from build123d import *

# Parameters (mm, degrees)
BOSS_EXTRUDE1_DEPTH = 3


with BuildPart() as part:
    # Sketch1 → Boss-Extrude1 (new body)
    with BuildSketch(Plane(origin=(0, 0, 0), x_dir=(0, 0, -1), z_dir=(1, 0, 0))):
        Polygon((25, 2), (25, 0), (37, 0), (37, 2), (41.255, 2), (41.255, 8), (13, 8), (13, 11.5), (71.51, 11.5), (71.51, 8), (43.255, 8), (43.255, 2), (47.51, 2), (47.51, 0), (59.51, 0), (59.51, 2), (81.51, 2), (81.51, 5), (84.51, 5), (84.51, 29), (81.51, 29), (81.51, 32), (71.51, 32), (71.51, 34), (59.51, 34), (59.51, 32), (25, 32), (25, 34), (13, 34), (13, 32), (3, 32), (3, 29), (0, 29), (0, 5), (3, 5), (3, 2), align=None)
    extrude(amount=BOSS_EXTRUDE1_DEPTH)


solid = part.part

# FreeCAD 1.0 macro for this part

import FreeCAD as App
import Part
import Sketcher
from FreeCAD import Vector


def add_polygon(sketch, points):
    """Adds a closed chain of lines whose ends are joined by coincident constraints."""
    first, n = sketch.GeometryCount, len(points)
    for a, b in zip(points, points[1:] + points[:1]):
        sketch.addGeometry(Part.LineSegment(App.Vector(*a, 0), App.Vector(*b, 0)), False)
    for i in range(n):
        sketch.addConstraint(Sketcher.Constraint("Coincident", first + i, 2, first + (i + 1) % n, 1))

doc = App.newDocument("Part")
params = doc.addObject("Spreadsheet::Sheet", "Params")
for row, (alias, value) in enumerate([
    ("sketch1_width", "2 mm"),
    ("sketch1_width2", "6 mm"),
    ("sketch1_width3", "3 mm"),
    ("sketch1_width4", "24 mm"),
    ("sketch1_height", "12 mm"),
    ("pad1_length", "3 mm"),
], start=1):
    params.set(f"A{row}", alias)
    params.set(f"B{row}", "=" + value)
    params.setAlias(f"B{row}", alias)

body = doc.addObject("PartDesign::Body", "Body")

# Sketch on YZ plane
sketch1 = doc.addObject("Sketcher::SketchObject", "Sketch")
body.addObject(sketch1)
sketch1.AttachmentSupport = (doc.YZ_Plane, [""])
sketch1.MapMode = "FlatFace"
add_polygon(sketch1, [(2, -25), (0, -25), (0, -37), (2, -37), (2, -41.3), (8, -41.3), (8, -13), (11.5, -13), (11.5, -71.5), (8, -71.5), (8, -43.3), (2, -43.3), (2, -47.5), (0, -47.5), (0, -59.5), (2, -59.5), (2, -81.5), (5, -81.5), (5, -84.5), (29, -84.5), (29, -81.5), (32, -81.5), (32, -71.5), (34, -71.5), (34, -59.5), (32, -59.5), (32, -25), (34, -25), (34, -13), (32, -13), (32, -3), (29, -3), (29, 0), (5, 0), (5, -3), (2, -3)])  # lines 0-35
sketch1.addConstraint([
    Sketcher.Constraint("Horizontal", 0),
    Sketcher.Constraint("Vertical", 1),
    Sketcher.Constraint("Horizontal", 2),
    Sketcher.Constraint("Vertical", 3),
    Sketcher.Constraint("Horizontal", 4),
    Sketcher.Constraint("Vertical", 5),
    Sketcher.Constraint("Horizontal", 6),
    Sketcher.Constraint("Vertical", 7),
    Sketcher.Constraint("Horizontal", 8),
    Sketcher.Constraint("Vertical", 9),
    Sketcher.Constraint("Horizontal", 10),
    Sketcher.Constraint("Vertical", 11),
    Sketcher.Constraint("Horizontal", 12),
    Sketcher.Constraint("Vertical", 13),
    Sketcher.Constraint("Horizontal", 14),
    Sketcher.Constraint("Vertical", 15),
    Sketcher.Constraint("Horizontal", 16),
    Sketcher.Constraint("Vertical", 17),
    Sketcher.Constraint("Horizontal", 18),
    Sketcher.Constraint("Vertical", 19),
    Sketcher.Constraint("Horizontal", 20),
    Sketcher.Constraint("Vertical", 21),
    Sketcher.Constraint("Horizontal", 22),
    Sketcher.Constraint("Vertical", 23),
    Sketcher.Constraint("Horizontal", 24),
    Sketcher.Constraint("Vertical", 25),
    Sketcher.Constraint("Horizontal", 26),
    Sketcher.Constraint("Vertical", 27),
    Sketcher.Constraint("Horizontal", 28),
    Sketcher.Constraint("Vertical", 29),
    Sketcher.Constraint("Horizontal", 30),
    Sketcher.Constraint("Vertical", 31),
    Sketcher.Constraint("Horizontal", 32),
    Sketcher.Constraint("Vertical", 33),
    Sketcher.Constraint("Horizontal", 34),
    Sketcher.Constraint("Vertical", 35),
    Sketcher.Constraint("PointOnObject", 0, 2, -2),
    Sketcher.Constraint("PointOnObject", 12, 2, -2),
    Sketcher.Constraint("PointOnObject", 31, 2, -1),
    Sketcher.Constraint("Horizontal", 16, 2, 19, 2),
    Sketcher.Constraint("Horizontal", 8, 2, 21, 2),
    Sketcher.Constraint("Horizontal", 14, 2, 23, 2),
    Sketcher.Constraint("Horizontal", 0, 2, 25, 2),
    Sketcher.Constraint("Horizontal", 6, 2, 27, 2),
    Sketcher.Constraint("Horizontal", 30, 2, 33, 2),
    Sketcher.Constraint("Vertical", 5, 2, 8, 2),
    Sketcher.Constraint("Vertical", 3, 2, 10, 2),
    Sketcher.Constraint("Vertical", 11, 2, 14, 2),
    Sketcher.Constraint("Vertical", 21, 2, 24, 2),
    Sketcher.Constraint("Vertical", 23, 2, 26, 2),
    Sketcher.Constraint("Vertical", 25, 2, 28, 2),
    Sketcher.Constraint("Vertical", 19, 2, 30, 2),
    Sketcher.Constraint("Vertical", 17, 2, 32, 2),
    Sketcher.Constraint("Vertical", 15, 2, 34, 2),
    Sketcher.Constraint("Equal", 16, 20),
    Sketcher.Constraint("Equal", 14, 22),
    Sketcher.Constraint("Equal", 5, 9),
    Sketcher.Constraint("Equal", 3, 11),
    Sketcher.Constraint("Equal", 1, 13),
    Sketcher.Constraint("Equal", 34, 17),
    Sketcher.Constraint("Equal", 13, 23),
    Sketcher.Constraint("Equal", 21, 29),
    Sketcher.Constraint("Equal", 19, 31),
    Sketcher.Constraint("DistanceX", 0, 2, 0, 1, 2.0),
    Sketcher.Constraint("DistanceX", 4, 1, 4, 2, 6.0),
    Sketcher.Constraint("DistanceX", 16, 1, 16, 2, 3.0),
    Sketcher.Constraint("DistanceX", 18, 1, 18, 2, 24.0),
    Sketcher.Constraint("DistanceY", 1, 2, 1, 1, 12.0),
    Sketcher.Constraint("DistanceY", 15, 2, 15, 1, 22.0),
    Sketcher.Constraint("DistanceX", 6, 1, 6, 2, 3.5),
    Sketcher.Constraint("DistanceY", 9, 2, 4, 2, 2.0),
    Sketcher.Constraint("DistanceY", 7, 2, 7, 1, 58.51),
])
sketch1.setExpression("Constraints[99]", "Params.sketch1_width")
sketch1.setExpression("Constraints[100]", "Params.sketch1_width2")
sketch1.setExpression("Constraints[101]", "Params.sketch1_width3")
sketch1.setExpression("Constraints[102]", "Params.sketch1_width4")
sketch1.setExpression("Constraints[103]", "Params.sketch1_height")
pad1 = doc.addObject("PartDesign::Pad", "Pad")
body.addObject(pad1)
pad1.Profile = sketch1
pad1.setExpression("Length", "Params.pad1_length")

doc.recompute()
